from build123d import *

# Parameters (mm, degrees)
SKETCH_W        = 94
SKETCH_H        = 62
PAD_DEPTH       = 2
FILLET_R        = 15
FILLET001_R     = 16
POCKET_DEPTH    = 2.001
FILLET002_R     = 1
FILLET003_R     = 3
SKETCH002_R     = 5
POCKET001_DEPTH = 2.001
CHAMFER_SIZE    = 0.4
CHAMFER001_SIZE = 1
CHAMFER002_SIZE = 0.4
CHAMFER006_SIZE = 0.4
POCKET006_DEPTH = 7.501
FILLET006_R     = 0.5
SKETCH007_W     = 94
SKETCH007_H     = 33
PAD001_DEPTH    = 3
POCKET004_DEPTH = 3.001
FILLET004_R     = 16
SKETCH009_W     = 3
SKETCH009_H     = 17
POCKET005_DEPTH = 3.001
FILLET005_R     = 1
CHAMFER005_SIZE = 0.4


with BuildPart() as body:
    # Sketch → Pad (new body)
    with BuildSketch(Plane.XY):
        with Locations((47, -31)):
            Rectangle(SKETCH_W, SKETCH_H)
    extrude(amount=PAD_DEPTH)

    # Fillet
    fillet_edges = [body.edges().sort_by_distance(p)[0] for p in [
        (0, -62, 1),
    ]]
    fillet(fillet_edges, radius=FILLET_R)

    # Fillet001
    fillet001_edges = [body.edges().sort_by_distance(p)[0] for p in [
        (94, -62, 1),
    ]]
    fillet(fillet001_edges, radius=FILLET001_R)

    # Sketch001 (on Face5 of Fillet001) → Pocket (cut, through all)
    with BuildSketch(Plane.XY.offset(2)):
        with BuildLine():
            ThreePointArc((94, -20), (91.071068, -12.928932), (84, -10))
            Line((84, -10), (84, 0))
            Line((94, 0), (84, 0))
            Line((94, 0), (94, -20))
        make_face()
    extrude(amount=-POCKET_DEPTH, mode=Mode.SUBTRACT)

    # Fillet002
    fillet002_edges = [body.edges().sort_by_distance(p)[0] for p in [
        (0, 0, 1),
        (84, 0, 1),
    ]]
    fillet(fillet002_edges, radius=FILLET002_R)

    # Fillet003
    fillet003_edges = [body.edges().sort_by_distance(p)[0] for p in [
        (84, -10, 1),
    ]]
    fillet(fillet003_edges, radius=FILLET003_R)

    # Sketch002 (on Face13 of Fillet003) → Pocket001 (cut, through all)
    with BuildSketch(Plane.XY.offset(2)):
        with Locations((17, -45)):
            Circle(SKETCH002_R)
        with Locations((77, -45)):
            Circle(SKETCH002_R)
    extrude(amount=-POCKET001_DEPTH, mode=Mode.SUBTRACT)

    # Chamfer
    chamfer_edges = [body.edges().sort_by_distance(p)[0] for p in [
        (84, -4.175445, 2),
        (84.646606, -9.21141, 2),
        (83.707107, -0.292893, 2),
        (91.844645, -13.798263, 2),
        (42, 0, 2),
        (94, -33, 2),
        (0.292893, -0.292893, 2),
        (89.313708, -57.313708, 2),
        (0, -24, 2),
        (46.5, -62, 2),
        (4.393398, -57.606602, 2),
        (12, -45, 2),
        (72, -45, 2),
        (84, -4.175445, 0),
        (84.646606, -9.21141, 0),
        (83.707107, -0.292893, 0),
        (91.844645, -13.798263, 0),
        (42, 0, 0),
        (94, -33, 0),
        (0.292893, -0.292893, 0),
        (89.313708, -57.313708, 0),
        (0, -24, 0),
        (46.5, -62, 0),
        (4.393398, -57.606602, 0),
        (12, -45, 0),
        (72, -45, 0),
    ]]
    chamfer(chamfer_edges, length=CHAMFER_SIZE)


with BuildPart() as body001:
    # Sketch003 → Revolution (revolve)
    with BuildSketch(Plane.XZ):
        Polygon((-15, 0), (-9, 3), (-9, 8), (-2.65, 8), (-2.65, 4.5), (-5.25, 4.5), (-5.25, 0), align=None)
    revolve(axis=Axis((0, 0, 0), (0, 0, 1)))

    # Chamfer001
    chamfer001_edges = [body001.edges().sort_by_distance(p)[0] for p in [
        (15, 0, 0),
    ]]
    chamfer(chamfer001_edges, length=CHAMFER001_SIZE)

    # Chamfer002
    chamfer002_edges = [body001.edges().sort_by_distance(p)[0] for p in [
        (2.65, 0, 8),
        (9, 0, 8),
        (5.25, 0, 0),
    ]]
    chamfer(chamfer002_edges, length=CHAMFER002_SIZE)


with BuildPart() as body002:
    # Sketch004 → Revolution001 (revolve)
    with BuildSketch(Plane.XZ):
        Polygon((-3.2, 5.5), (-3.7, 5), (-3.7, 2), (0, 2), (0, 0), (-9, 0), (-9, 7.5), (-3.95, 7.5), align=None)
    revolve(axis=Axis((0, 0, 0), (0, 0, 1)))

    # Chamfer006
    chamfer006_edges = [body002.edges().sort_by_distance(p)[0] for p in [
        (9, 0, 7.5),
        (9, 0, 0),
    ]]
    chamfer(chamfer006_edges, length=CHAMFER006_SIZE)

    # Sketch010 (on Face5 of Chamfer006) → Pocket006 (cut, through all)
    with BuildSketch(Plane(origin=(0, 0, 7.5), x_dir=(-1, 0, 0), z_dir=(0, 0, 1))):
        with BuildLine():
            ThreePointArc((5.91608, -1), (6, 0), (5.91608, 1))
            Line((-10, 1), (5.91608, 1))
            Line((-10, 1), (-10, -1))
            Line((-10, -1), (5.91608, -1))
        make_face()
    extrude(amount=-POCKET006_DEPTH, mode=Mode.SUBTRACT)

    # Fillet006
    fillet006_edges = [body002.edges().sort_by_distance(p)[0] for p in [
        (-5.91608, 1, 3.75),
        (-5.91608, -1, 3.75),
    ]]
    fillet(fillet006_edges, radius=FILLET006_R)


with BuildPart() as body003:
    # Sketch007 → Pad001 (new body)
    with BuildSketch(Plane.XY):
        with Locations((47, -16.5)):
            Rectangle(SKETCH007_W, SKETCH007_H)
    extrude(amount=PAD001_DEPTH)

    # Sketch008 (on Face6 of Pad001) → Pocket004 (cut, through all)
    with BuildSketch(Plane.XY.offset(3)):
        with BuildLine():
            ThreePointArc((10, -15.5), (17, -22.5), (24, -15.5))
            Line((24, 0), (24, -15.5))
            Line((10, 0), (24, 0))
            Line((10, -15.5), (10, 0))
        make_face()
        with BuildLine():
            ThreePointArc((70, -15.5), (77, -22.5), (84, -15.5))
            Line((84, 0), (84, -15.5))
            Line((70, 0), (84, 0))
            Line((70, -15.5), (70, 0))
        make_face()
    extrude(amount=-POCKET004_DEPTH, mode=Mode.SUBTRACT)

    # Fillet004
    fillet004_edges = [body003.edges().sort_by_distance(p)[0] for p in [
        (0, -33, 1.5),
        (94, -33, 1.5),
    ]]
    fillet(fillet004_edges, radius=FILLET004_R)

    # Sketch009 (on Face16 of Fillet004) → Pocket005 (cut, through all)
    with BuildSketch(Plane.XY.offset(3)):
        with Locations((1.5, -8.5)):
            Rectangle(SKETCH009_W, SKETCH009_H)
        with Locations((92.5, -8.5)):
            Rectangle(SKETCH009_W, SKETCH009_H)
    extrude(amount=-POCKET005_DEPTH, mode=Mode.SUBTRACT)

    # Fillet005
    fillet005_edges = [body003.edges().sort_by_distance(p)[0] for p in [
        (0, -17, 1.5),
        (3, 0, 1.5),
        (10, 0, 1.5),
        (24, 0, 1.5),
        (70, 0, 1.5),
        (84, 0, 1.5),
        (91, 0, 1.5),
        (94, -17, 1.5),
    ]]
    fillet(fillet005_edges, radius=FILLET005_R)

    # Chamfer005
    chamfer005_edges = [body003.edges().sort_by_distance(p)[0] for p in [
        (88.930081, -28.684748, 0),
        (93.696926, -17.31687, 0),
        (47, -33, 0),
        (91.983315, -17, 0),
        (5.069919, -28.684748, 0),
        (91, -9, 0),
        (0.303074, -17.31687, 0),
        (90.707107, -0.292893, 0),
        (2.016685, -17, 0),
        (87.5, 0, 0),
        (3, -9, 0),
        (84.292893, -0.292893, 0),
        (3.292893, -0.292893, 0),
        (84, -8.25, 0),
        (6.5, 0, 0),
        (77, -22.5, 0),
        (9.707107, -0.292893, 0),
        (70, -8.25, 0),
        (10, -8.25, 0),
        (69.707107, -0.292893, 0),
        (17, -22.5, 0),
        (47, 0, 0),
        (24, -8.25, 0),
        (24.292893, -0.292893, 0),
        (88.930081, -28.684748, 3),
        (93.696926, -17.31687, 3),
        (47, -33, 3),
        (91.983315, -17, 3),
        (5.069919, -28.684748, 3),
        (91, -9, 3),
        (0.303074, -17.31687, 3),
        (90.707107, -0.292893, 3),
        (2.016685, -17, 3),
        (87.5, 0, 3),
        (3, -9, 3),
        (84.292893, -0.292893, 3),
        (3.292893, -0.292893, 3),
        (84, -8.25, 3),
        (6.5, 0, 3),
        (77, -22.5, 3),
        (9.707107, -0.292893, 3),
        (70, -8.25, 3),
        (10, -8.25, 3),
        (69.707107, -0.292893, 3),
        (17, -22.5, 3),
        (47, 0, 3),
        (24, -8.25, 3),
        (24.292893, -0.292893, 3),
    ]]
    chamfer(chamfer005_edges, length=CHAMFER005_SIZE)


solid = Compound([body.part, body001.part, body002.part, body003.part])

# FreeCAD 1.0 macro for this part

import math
import FreeCAD as App
import Part
import Sketcher
from FreeCAD import Vector
Q = App.Units.Quantity


def edges_at(feature, points):
    """Names of the edges that pass closest to the given points."""
    edges = feature.Shape.Edges
    near = lambda p: min(range(len(edges)), key=lambda i: edges[i].distToShape(Part.Vertex(*p))[0])
    return sorted({f"Edge{near(p) + 1}" for p in points})

doc = App.newDocument("Part")
body = doc.addObject("PartDesign::Body", "Body")

sketch1 = body.newObject("Sketcher::SketchObject", "Sketch")
sketch1.AttachmentSupport = (doc.getObject("XY_Plane"), [""])
sketch1.MapMode = "FlatFace"
sketch1.addGeometry([
    Part.LineSegment(Vector(0, 0, 0), Vector(0, -62, 0)),
    Part.LineSegment(Vector(0, -62, 0), Vector(94, -62, 0)),
    Part.LineSegment(Vector(94, -62, 0), Vector(94, 0, 0)),
    Part.LineSegment(Vector(94, 0, 0), Vector(0, 0, 0)),
], False)
sketch1.addConstraint([
    Sketcher.Constraint("Coincident", 0, 2, 1, 1),
    Sketcher.Constraint("Coincident", 1, 2, 2, 1),
    Sketcher.Constraint("Coincident", 2, 2, 3, 1),
    Sketcher.Constraint("Coincident", 3, 2, 0, 1),
    Sketcher.Constraint("Vertical", 0),
    Sketcher.Constraint("Horizontal", 1),
    Sketcher.Constraint("Vertical", 2),
    Sketcher.Constraint("Horizontal", 3),
    Sketcher.Constraint("Coincident", 3, 2, -1, 1),
    Sketcher.Constraint("DistanceX", 1, 1, 1, 2, Q("94 mm")),
    Sketcher.Constraint("DistanceY", 0, 2, 0, 1, Q("62 mm")),
])
pad1 = body.newObject("PartDesign::Pad", "Pad")
pad1.Profile = sketch1
pad1.Length = 2
doc.recompute()

fillet = body.newObject("PartDesign::Fillet", "Fillet")
fillet.Base = (pad1, edges_at(pad1, [(0, -62, 1)]))
fillet.Radius = 15
doc.recompute()

fillet2 = body.newObject("PartDesign::Fillet", "Fillet001")
fillet2.Base = (fillet, edges_at(fillet, [(94, -62, 1)]))
fillet2.Radius = 16

sketch2 = body.newObject("Sketcher::SketchObject", "Sketch001")
sketch2.AttachmentSupport = (doc.getObject("XY_Plane"), [""])
sketch2.MapMode = "FlatFace"
sketch2.AttachmentOffset = App.Placement(Vector(0, 0, 2), App.Rotation())
sketch2.addGeometry([
    Part.ArcOfCircle(Part.Circle(Vector(84, -20, 0), Vector(0, 0, 1), 10), math.radians(0), math.radians(90)),
    Part.LineSegment(Vector(94, -20, 0), Vector(94, 0, 0)),
    Part.LineSegment(Vector(94, 0, 0), Vector(84, 0, 0)),
    Part.LineSegment(Vector(84, 0, 0), Vector(84, -10, 0)),
], False)
sketch2.addConstraint([
    Sketcher.Constraint("Tangent", 0, 1, 1, 1),
    Sketcher.Constraint("Coincident", 1, 2, 2, 1),
    Sketcher.Constraint("Coincident", 2, 2, 3, 1),
    Sketcher.Constraint("Coincident", 3, 2, 0, 2),
    Sketcher.Constraint("Vertical", 1),
    Sketcher.Constraint("Horizontal", 2),
    Sketcher.Constraint("Vertical", 3),
    Sketcher.Constraint("PointOnObject", 1, 2, -1),
    Sketcher.Constraint("Vertical", 0, 3, 2, 2),
    Sketcher.Constraint("Equal", 2, 3),
    Sketcher.Constraint("Radius", 0, Q("9.999999 mm")),
    Sketcher.Constraint("DistanceX", -1, 1, 0, 3, Q("84.000001 mm")),
])
pocket1 = body.newObject("PartDesign::Pocket", "Pocket")
pocket1.Profile = sketch2
pocket1.Type = "ThroughAll"
doc.recompute()

fillet3 = body.newObject("PartDesign::Fillet", "Fillet002")
fillet3.Base = (pocket1, edges_at(pocket1, [(0, 0, 1), (84, 0, 1)]))
fillet3.Radius = 1
doc.recompute()

fillet4 = body.newObject("PartDesign::Fillet", "Fillet003")
fillet4.Base = (fillet3, edges_at(fillet3, [(84, -10, 1)]))
fillet4.Radius = 3

sketch3 = body.newObject("Sketcher::SketchObject", "Sketch002")
sketch3.AttachmentSupport = (doc.getObject("XY_Plane"), [""])
sketch3.MapMode = "FlatFace"
sketch3.AttachmentOffset = App.Placement(Vector(0, 0, 2), App.Rotation())
sketch3.addGeometry([
    Part.Circle(Vector(17, -45, 0), Vector(0, 0, 1), 5),
    Part.Circle(Vector(77, -45, 0), Vector(0, 0, 1), 5),
], False)
sketch3.addConstraint([
    Sketcher.Constraint("Equal", 0, 1),
    Sketcher.Constraint("Horizontal", 0, 3, 1, 3),
    Sketcher.Constraint("Diameter", 0, Q("10 mm")),
    Sketcher.Constraint("DistanceX", -1, 1, 0, 3, Q("17 mm")),
    Sketcher.Constraint("DistanceY", 0, 3, -1, 1, Q("45 mm")),
    Sketcher.Constraint("DistanceX", -1, 1, 1, 3, Q("77 mm")),
])
pocket2 = body.newObject("PartDesign::Pocket", "Pocket001")
pocket2.Profile = sketch3
pocket2.Type = "ThroughAll"
doc.recompute()

chamfer = body.newObject("PartDesign::Chamfer", "Chamfer")
chamfer.Base = (pocket2, edges_at(pocket2, [
    (84, -4.175, 2),
    (84.647, -9.211, 2),
    (83.707, -0.293, 2),
    (91.845, -13.798, 2),
    (42, 0, 2),
    (94, -33, 2),
    (0.293, -0.293, 2),
    (89.314, -57.314, 2),
    (0, -24, 2),
    (46.5, -62, 2),
    (4.393, -57.607, 2),
    (12, -45, 2),
    (72, -45, 2),
    (84, -4.175, 0),
    (84.647, -9.211, 0),
    (83.707, -0.293, 0),
    (91.845, -13.798, 0),
    (42, 0, 0),
    (94, -33, 0),
    (0.293, -0.293, 0),
    (89.314, -57.314, 0),
    (0, -24, 0),
    (46.5, -62, 0),
    (4.393, -57.607, 0),
    (12, -45, 0),
    (72, -45, 0),
]))
chamfer.Size = 0.4
body2 = doc.addObject("PartDesign::Body", "Body001")

sketch4 = body2.newObject("Sketcher::SketchObject", "Sketch003")
sketch4.AttachmentSupport = (doc.getObject("XZ_Plane001"), [""])
sketch4.MapMode = "FlatFace"
sketch4.addGeometry([
    Part.LineSegment(Vector(-9, 3, 0), Vector(-15, 0, 0)),
    Part.LineSegment(Vector(-15, 0, 0), Vector(-5.2, 0, 0)),
    Part.LineSegment(Vector(-5.2, 0, 0), Vector(-5.2, 4.5, 0)),
    Part.LineSegment(Vector(-5.2, 4.5, 0), Vector(-2.6, 4.5, 0)),
    Part.LineSegment(Vector(-2.6, 4.5, 0), Vector(-2.6, 8, 0)),
    Part.LineSegment(Vector(-2.6, 8, 0), Vector(-9, 8, 0)),
    Part.LineSegment(Vector(-9, 8, 0), Vector(-9, 3, 0)),
], False)
sketch4.addConstraint([
    Sketcher.Constraint("Coincident", 0, 2, 1, 1),
    Sketcher.Constraint("Coincident", 1, 2, 2, 1),
    Sketcher.Constraint("Coincident", 2, 2, 3, 1),
    Sketcher.Constraint("Coincident", 3, 2, 4, 1),
    Sketcher.Constraint("Coincident", 4, 2, 5, 1),
    Sketcher.Constraint("Coincident", 5, 2, 6, 1),
    Sketcher.Constraint("Coincident", 6, 2, 0, 1),
    Sketcher.Constraint("Horizontal", 1),
    Sketcher.Constraint("Vertical", 2),
    Sketcher.Constraint("Horizontal", 3),
    Sketcher.Constraint("Vertical", 4),
    Sketcher.Constraint("Horizontal", 5),
    Sketcher.Constraint("Vertical", 6),
    Sketcher.Constraint("PointOnObject", 0, 2, -1),
    Sketcher.Constraint("DistanceY", 6, 2, 6, 1, Q("5 mm")),
    Sketcher.Constraint("DistanceX", 3, 1, 3, 2, Q("2.6 mm")),
    Sketcher.Constraint("DistanceY", 2, 1, 2, 2, Q("4.5 mm")),
    Sketcher.Constraint("DistanceY", 4, 1, 4, 2, Q("3.5 mm")),
    Sketcher.Constraint("DistanceX", 0, 2, -1, 1, Q("15 mm")),
    Sketcher.Constraint("DistanceX", 5, 2, -1, 1, Q("9 mm")),
    Sketcher.Constraint("DistanceX", 1, 1, 1, 2, Q("9.75 mm")),
])
revolution = body2.newObject("PartDesign::Revolution", "Revolution")
revolution.Profile = sketch4
revolution.ReferenceAxis = (sketch4, ["V_Axis"])
revolution.Angle = 360
doc.recompute()

chamfer2 = body2.newObject("PartDesign::Chamfer", "Chamfer001")
chamfer2.Base = (revolution, edges_at(revolution, [(15, 0, 0)]))
chamfer2.Size = 1
doc.recompute()

chamfer3 = body2.newObject("PartDesign::Chamfer", "Chamfer002")
chamfer3.Base = (chamfer2, edges_at(chamfer2, [(2.65, 0, 8), (9, 0, 8), (5.25, 0, 0)]))
chamfer3.Size = 0.4
body3 = doc.addObject("PartDesign::Body", "Body002")

sketch5 = body3.newObject("Sketcher::SketchObject", "Sketch004")
sketch5.AttachmentSupport = (doc.getObject("XZ_Plane002"), [""])
sketch5.MapMode = "FlatFace"
sketch5.addGeometry([
    Part.LineSegment(Vector(-3.7, 5, 0), Vector(-3.2, 5.5, 0)),
    Part.LineSegment(Vector(-3.2, 5.5, 0), Vector(-4, 7.5, 0)),
    Part.LineSegment(Vector(-4, 7.5, 0), Vector(-9, 7.5, 0)),
    Part.LineSegment(Vector(-9, 7.5, 0), Vector(-9, 0, 0)),
    Part.LineSegment(Vector(-9, 0, 0), Vector(0, 0, 0)),
    Part.LineSegment(Vector(0, 0, 0), Vector(0, 2, 0)),
    Part.LineSegment(Vector(0, 2, 0), Vector(-3.7, 2, 0)),
    Part.LineSegment(Vector(-3.7, 2, 0), Vector(-3.7, 5, 0)),
], False)
sketch5.addConstraint([
    Sketcher.Constraint("Coincident", 0, 2, 1, 1),
    Sketcher.Constraint("Coincident", 1, 2, 2, 1),
    Sketcher.Constraint("Coincident", 2, 2, 3, 1),
    Sketcher.Constraint("Coincident", 3, 2, 4, 1),
    Sketcher.Constraint("Coincident", 4, 2, 5, 1),
    Sketcher.Constraint("Coincident", 5, 2, 6, 1),
    Sketcher.Constraint("Coincident", 6, 2, 7, 1),
    Sketcher.Constraint("Coincident", 7, 2, 0, 1),
    Sketcher.Constraint("Horizontal", 2),
    Sketcher.Constraint("Vertical", 3),
    Sketcher.Constraint("Horizontal", 4),
    Sketcher.Constraint("Vertical", 5),
    Sketcher.Constraint("Horizontal", 6),
    Sketcher.Constraint("Vertical", 7),
    Sketcher.Constraint("Coincident", 4, 2, -1, 1),
    Sketcher.Constraint("DistanceX", 4, 1, 4, 2, Q("9 mm")),
    Sketcher.Constraint("DistanceY", 5, 1, 5, 2, Q("2 mm")),
    Sketcher.Constraint("DistanceY", 7, 1, 7, 2, Q("3 mm")),
    Sketcher.Constraint("Angle", 0, Q("45 deg")),
    Sketcher.Constraint("DistanceX", 6, 2, 6, 1, Q("3.7 mm")),
    Sketcher.Constraint("DistanceY", 3, 2, 3, 1, Q("7.5 mm")),
    Sketcher.Constraint("DistanceY", 0, 2, 1, 2, Q("2 mm")),
    Sketcher.Constraint("DistanceX", 2, 2, 2, 1, Q("5.05 mm")),
])
revolution2 = body3.newObject("PartDesign::Revolution", "Revolution001")
revolution2.Profile = sketch5
revolution2.ReferenceAxis = (sketch5, ["V_Axis"])
revolution2.Angle = 360
doc.recompute()

chamfer4 = body3.newObject("PartDesign::Chamfer", "Chamfer003")
chamfer4.Base = (revolution2, edges_at(revolution2, [(9, 0, 7.5), (9, 0, 0)]))
chamfer4.Size = 0.4

sketch6 = body3.newObject("Sketcher::SketchObject", "Sketch005")
sketch6.AttachmentSupport = (doc.getObject("XY_Plane002"), [""])
sketch6.MapMode = "FlatFace"
sketch6.AttachmentOffset = App.Placement(Vector(0, 0, 7.5), App.Rotation())
sketch6.addGeometry([
    Part.ArcOfCircle(Part.Circle(Vector(0, 0, 0), Vector(0, 0, 1), 6), math.radians(170.41), math.radians(189.59)),
    Part.LineSegment(Vector(-5.9, -1, 0), Vector(10, -1, 0)),
    Part.LineSegment(Vector(10, -1, 0), Vector(10, 1, 0)),
    Part.LineSegment(Vector(10, 1, 0), Vector(-5.9, 1, 0)),
], False)
sketch6.addConstraint([
    Sketcher.Constraint("Coincident", 0, 2, 1, 1),
    Sketcher.Constraint("Coincident", 1, 2, 2, 1),
    Sketcher.Constraint("Coincident", 2, 2, 3, 1),
    Sketcher.Constraint("Coincident", 3, 2, 0, 1),
    Sketcher.Constraint("Horizontal", 1),
    Sketcher.Constraint("Vertical", 2),
    Sketcher.Constraint("Horizontal", 3),
    Sketcher.Constraint("Symmetric", 0, 2, 3, 2, -1),
    Sketcher.Constraint("DistanceY", 2, 1, 2, 2, Q("2 mm")),
    Sketcher.Constraint("DistanceX", -1, 1, 1, 2, Q("10 mm")),
    Sketcher.Constraint("Radius", 0, Q("6.000015 mm")),
    Sketcher.Constraint("DistanceX", 1, 1, 1, 2, Q("15.91608 mm")),
])
pocket3 = body3.newObject("PartDesign::Pocket", "Pocket002")
pocket3.Profile = sketch6
pocket3.Type = "ThroughAll"
doc.recompute()

fillet5 = body3.newObject("PartDesign::Fillet", "Fillet004")
fillet5.Base = (pocket3, edges_at(pocket3, [(-5.916, 1, 3.75), (-5.916, -1, 3.75)]))
fillet5.Radius = 0.5
body4 = doc.addObject("PartDesign::Body", "Body003")

sketch7 = body4.newObject("Sketcher::SketchObject", "Sketch006")
sketch7.AttachmentSupport = (doc.getObject("XY_Plane003"), [""])
sketch7.MapMode = "FlatFace"
sketch7.addGeometry([
    Part.LineSegment(Vector(0, 0, 0), Vector(0, -33, 0)),
    Part.LineSegment(Vector(0, -33, 0), Vector(94, -33, 0)),
    Part.LineSegment(Vector(94, -33, 0), Vector(94, 0, 0)),
    Part.LineSegment(Vector(94, 0, 0), Vector(0, 0, 0)),
], False)
sketch7.addConstraint([
    Sketcher.Constraint("Coincident", 0, 2, 1, 1),
    Sketcher.Constraint("Coincident", 1, 2, 2, 1),
    Sketcher.Constraint("Coincident", 2, 2, 3, 1),
    Sketcher.Constraint("Coincident", 3, 2, 0, 1),
    Sketcher.Constraint("Vertical", 0),
    Sketcher.Constraint("Horizontal", 1),
    Sketcher.Constraint("Vertical", 2),
    Sketcher.Constraint("Horizontal", 3),
    Sketcher.Constraint("Coincident", 3, 2, -1, 1),
    Sketcher.Constraint("DistanceX", 1, 1, 1, 2, Q("94 mm")),
    Sketcher.Constraint("DistanceY", 0, 2, 0, 1, Q("33 mm")),
])
pad2 = body4.newObject("PartDesign::Pad", "Pad001")
pad2.Profile = sketch7
pad2.Length = 3

sketch8 = body4.newObject("Sketcher::SketchObject", "Sketch007")
sketch8.AttachmentSupport = (doc.getObject("XY_Plane003"), [""])
sketch8.MapMode = "FlatFace"
sketch8.AttachmentOffset = App.Placement(Vector(0, 0, 3), App.Rotation())
sketch8.addGeometry([
    Part.ArcOfCircle(Part.Circle(Vector(17, -16, 0), Vector(0, 0, 1), 7), math.radians(180), math.radians(360)),
    Part.LineSegment(Vector(24, -16, 0), Vector(24, 0, 0)),
    Part.LineSegment(Vector(24, 0, 0), Vector(10, 0, 0)),
    Part.LineSegment(Vector(10, 0, 0), Vector(10, -16, 0)),
    Part.ArcOfCircle(Part.Circle(Vector(77, -16, 0), Vector(0, 0, 1), 7), math.radians(180), math.radians(360)),
    Part.LineSegment(Vector(84, -16, 0), Vector(84, 0, 0)),
    Part.LineSegment(Vector(84, 0, 0), Vector(70, 0, 0)),
    Part.LineSegment(Vector(70, 0, 0), Vector(70, -16, 0)),
], False)
sketch8.addConstraint([
    Sketcher.Constraint("Tangent", 0, 2, 1, 1),
    Sketcher.Constraint("Coincident", 1, 2, 2, 1),
    Sketcher.Constraint("Coincident", 2, 2, 3, 1),
    Sketcher.Constraint("Tangent", 3, 2, 0, 1),
    Sketcher.Constraint("Tangent", 4, 2, 5, 1),
    Sketcher.Constraint("Coincident", 5, 2, 6, 1),
    Sketcher.Constraint("Coincident", 6, 2, 7, 1),
    Sketcher.Constraint("Tangent", 7, 2, 4, 1),
    Sketcher.Constraint("Vertical", 1),
    Sketcher.Constraint("Horizontal", 2),
    Sketcher.Constraint("Vertical", 3),
    Sketcher.Constraint("Vertical", 5),
    Sketcher.Constraint("Horizontal", 6),
    Sketcher.Constraint("Vertical", 7),
    Sketcher.Constraint("Equal", 0, 4),
    Sketcher.Constraint("PointOnObject", 1, 2, -1),
    Sketcher.Constraint("PointOnObject", 5, 2, -1),
    Sketcher.Constraint("Horizontal", 0, 3, 4, 3),
    Sketcher.Constraint("Radius", 0, Q("7 mm")),
    Sketcher.Constraint("DistanceY", 1, 1, 1, 2, Q("15.5 mm")),
    Sketcher.Constraint("DistanceX", -1, 1, 0, 3, Q("17 mm")),
    Sketcher.Constraint("DistanceX", -1, 1, 4, 3, Q("77 mm")),
])
pocket4 = body4.newObject("PartDesign::Pocket", "Pocket003")
pocket4.Profile = sketch8
pocket4.Type = "ThroughAll"
doc.recompute()

fillet6 = body4.newObject("PartDesign::Fillet", "Fillet005")
fillet6.Base = (pocket4, edges_at(pocket4, [(0, -33, 1.5), (94, -33, 1.5)]))
fillet6.Radius = 16

sketch9 = body4.newObject("Sketcher::SketchObject", "Sketch008")
sketch9.AttachmentSupport = (doc.getObject("XY_Plane003"), [""])
sketch9.MapMode = "FlatFace"
sketch9.AttachmentOffset = App.Placement(Vector(0, 0, 3), App.Rotation())
sketch9.addGeometry([
    Part.LineSegment(Vector(0, 0, 0), Vector(0, -17, 0)),
    Part.LineSegment(Vector(0, -17, 0), Vector(3, -17, 0)),
    Part.LineSegment(Vector(3, -17, 0), Vector(3, 0, 0)),
    Part.LineSegment(Vector(3, 0, 0), Vector(0, 0, 0)),
    Part.LineSegment(Vector(91, 0, 0), Vector(91, -17, 0)),
    Part.LineSegment(Vector(91, -17, 0), Vector(94, -17, 0)),
    Part.LineSegment(Vector(94, -17, 0), Vector(94, 0, 0)),
    Part.LineSegment(Vector(94, 0, 0), Vector(91, 0, 0)),
], False)
sketch9.addConstraint([
    Sketcher.Constraint("Coincident", 0, 2, 1, 1),
    Sketcher.Constraint("Coincident", 1, 2, 2, 1),
    Sketcher.Constraint("Coincident", 2, 2, 3, 1),
    Sketcher.Constraint("Coincident", 3, 2, 0, 1),
    Sketcher.Constraint("Coincident", 4, 2, 5, 1),
    Sketcher.Constraint("Coincident", 5, 2, 6, 1),
    Sketcher.Constraint("Coincident", 6, 2, 7, 1),
    Sketcher.Constraint("Coincident", 7, 2, 4, 1),
    Sketcher.Constraint("Vertical", 0),
    Sketcher.Constraint("Horizontal", 1),
    Sketcher.Constraint("Vertical", 2),
    Sketcher.Constraint("Horizontal", 3),
    Sketcher.Constraint("Vertical", 4),
    Sketcher.Constraint("Horizontal", 5),
    Sketcher.Constraint("Vertical", 6),
    Sketcher.Constraint("Horizontal", 7),
    Sketcher.Constraint("Coincident", 3, 2, -1, 1),
    Sketcher.Constraint("PointOnObject", 6, 2, -1),
    Sketcher.Constraint("Horizontal", 1, 2, 4, 2),
    Sketcher.Constraint("Equal", 3, 5),
    Sketcher.Constraint("DistanceX", 1, 1, 1, 2, Q("3 mm")),
    Sketcher.Constraint("DistanceY", 0, 2, 0, 1, Q("17 mm")),
    Sketcher.Constraint("DistanceX", -1, 1, 4, 2, Q("91 mm")),
])
pocket5 = body4.newObject("PartDesign::Pocket", "Pocket004")
pocket5.Profile = sketch9
pocket5.Type = "ThroughAll"
doc.recompute()

fillet7 = body4.newObject("PartDesign::Fillet", "Fillet006")
fillet7.Base = (pocket5, edges_at(pocket5, [
    (0, -17, 1.5),
    (3, 0, 1.5),
    (10, 0, 1.5),
    (24, 0, 1.5),
    (70, 0, 1.5),
    (84, 0, 1.5),
    (91, 0, 1.5),
    (94, -17, 1.5),
]))
fillet7.Radius = 1
doc.recompute()

chamfer5 = body4.newObject("PartDesign::Chamfer", "Chamfer004")
chamfer5.Base = (fillet7, edges_at(fillet7, [
    (88.93, -28.685, 0),
    (93.697, -17.317, 0),
    (47, -33, 0),
    (91.983, -17, 0),
    (5.07, -28.685, 0),
    (91, -9, 0),
    (0.303, -17.317, 0),
    (90.707, -0.293, 0),
    (2.017, -17, 0),
    (87.5, 0, 0),
    (3, -9, 0),
    (84.293, -0.293, 0),
    (3.293, -0.293, 0),
    (84, -8.25, 0),
    (6.5, 0, 0),
    (77, -22.5, 0),
    (9.707, -0.293, 0),
    (70, -8.25, 0),
    (10, -8.25, 0),
    (69.707, -0.293, 0),
    (17, -22.5, 0),
    (47, 0, 0),
    (24, -8.25, 0),
    (24.293, -0.293, 0),
    (88.93, -28.685, 3),
    (93.697, -17.317, 3),
    (47, -33, 3),
    (91.983, -17, 3),
    (5.07, -28.685, 3),
    (91, -9, 3),
    (0.303, -17.317, 3),
    (90.707, -0.293, 3),
    (2.017, -17, 3),
    (87.5, 0, 3),
    (3, -9, 3),
    (84.293, -0.293, 3),
    (3.293, -0.293, 3),
    (84, -8.25, 3),
    (6.5, 0, 3),
    (77, -22.5, 3),
    (9.707, -0.293, 3),
    (70, -8.25, 3),
    (10, -8.25, 3),
    (69.707, -0.293, 3),
    (17, -22.5, 3),
    (47, 0, 3),
    (24, -8.25, 3),
    (24.293, -0.293, 3),
]))
chamfer5.Size = 0.4

doc.recompute()
